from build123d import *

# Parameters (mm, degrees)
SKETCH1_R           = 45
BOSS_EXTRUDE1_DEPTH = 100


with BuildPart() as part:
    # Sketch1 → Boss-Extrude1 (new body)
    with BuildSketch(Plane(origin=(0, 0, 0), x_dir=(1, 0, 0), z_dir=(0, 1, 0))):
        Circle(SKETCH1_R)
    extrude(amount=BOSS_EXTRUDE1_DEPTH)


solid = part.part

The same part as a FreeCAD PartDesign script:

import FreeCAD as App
import Part
import Sketcher

V = App.Vector
Q = App.Units.Quantity

doc = App.newDocument("Part")
body = doc.addObject("PartDesign::Body", "Body")

# Sketch on XZ plane
sketch1 = doc.addObject("Sketcher::SketchObject", "Sketch")
body.addObject(sketch1)
sketch1.AttachmentSupport = (doc.XZ_Plane, [""])
sketch1.MapMode = "FlatFace"
sketch1.addGeometry(Part.Circle(V(0, 0, 0), V(0, 0, 1), 45), False)
sketch1.addConstraint(Sketcher.Constraint("Coincident", 0, 3, -1, 1))
sketch1.addConstraint(Sketcher.Constraint("Diameter", 0, Q("90 mm")))
pad1 = doc.addObject("PartDesign::Pad", "Pad")
body.addObject(pad1)
pad1.Profile = sketch1
pad1.Length = 100
pad1.Reversed = True

doc.recompute()
